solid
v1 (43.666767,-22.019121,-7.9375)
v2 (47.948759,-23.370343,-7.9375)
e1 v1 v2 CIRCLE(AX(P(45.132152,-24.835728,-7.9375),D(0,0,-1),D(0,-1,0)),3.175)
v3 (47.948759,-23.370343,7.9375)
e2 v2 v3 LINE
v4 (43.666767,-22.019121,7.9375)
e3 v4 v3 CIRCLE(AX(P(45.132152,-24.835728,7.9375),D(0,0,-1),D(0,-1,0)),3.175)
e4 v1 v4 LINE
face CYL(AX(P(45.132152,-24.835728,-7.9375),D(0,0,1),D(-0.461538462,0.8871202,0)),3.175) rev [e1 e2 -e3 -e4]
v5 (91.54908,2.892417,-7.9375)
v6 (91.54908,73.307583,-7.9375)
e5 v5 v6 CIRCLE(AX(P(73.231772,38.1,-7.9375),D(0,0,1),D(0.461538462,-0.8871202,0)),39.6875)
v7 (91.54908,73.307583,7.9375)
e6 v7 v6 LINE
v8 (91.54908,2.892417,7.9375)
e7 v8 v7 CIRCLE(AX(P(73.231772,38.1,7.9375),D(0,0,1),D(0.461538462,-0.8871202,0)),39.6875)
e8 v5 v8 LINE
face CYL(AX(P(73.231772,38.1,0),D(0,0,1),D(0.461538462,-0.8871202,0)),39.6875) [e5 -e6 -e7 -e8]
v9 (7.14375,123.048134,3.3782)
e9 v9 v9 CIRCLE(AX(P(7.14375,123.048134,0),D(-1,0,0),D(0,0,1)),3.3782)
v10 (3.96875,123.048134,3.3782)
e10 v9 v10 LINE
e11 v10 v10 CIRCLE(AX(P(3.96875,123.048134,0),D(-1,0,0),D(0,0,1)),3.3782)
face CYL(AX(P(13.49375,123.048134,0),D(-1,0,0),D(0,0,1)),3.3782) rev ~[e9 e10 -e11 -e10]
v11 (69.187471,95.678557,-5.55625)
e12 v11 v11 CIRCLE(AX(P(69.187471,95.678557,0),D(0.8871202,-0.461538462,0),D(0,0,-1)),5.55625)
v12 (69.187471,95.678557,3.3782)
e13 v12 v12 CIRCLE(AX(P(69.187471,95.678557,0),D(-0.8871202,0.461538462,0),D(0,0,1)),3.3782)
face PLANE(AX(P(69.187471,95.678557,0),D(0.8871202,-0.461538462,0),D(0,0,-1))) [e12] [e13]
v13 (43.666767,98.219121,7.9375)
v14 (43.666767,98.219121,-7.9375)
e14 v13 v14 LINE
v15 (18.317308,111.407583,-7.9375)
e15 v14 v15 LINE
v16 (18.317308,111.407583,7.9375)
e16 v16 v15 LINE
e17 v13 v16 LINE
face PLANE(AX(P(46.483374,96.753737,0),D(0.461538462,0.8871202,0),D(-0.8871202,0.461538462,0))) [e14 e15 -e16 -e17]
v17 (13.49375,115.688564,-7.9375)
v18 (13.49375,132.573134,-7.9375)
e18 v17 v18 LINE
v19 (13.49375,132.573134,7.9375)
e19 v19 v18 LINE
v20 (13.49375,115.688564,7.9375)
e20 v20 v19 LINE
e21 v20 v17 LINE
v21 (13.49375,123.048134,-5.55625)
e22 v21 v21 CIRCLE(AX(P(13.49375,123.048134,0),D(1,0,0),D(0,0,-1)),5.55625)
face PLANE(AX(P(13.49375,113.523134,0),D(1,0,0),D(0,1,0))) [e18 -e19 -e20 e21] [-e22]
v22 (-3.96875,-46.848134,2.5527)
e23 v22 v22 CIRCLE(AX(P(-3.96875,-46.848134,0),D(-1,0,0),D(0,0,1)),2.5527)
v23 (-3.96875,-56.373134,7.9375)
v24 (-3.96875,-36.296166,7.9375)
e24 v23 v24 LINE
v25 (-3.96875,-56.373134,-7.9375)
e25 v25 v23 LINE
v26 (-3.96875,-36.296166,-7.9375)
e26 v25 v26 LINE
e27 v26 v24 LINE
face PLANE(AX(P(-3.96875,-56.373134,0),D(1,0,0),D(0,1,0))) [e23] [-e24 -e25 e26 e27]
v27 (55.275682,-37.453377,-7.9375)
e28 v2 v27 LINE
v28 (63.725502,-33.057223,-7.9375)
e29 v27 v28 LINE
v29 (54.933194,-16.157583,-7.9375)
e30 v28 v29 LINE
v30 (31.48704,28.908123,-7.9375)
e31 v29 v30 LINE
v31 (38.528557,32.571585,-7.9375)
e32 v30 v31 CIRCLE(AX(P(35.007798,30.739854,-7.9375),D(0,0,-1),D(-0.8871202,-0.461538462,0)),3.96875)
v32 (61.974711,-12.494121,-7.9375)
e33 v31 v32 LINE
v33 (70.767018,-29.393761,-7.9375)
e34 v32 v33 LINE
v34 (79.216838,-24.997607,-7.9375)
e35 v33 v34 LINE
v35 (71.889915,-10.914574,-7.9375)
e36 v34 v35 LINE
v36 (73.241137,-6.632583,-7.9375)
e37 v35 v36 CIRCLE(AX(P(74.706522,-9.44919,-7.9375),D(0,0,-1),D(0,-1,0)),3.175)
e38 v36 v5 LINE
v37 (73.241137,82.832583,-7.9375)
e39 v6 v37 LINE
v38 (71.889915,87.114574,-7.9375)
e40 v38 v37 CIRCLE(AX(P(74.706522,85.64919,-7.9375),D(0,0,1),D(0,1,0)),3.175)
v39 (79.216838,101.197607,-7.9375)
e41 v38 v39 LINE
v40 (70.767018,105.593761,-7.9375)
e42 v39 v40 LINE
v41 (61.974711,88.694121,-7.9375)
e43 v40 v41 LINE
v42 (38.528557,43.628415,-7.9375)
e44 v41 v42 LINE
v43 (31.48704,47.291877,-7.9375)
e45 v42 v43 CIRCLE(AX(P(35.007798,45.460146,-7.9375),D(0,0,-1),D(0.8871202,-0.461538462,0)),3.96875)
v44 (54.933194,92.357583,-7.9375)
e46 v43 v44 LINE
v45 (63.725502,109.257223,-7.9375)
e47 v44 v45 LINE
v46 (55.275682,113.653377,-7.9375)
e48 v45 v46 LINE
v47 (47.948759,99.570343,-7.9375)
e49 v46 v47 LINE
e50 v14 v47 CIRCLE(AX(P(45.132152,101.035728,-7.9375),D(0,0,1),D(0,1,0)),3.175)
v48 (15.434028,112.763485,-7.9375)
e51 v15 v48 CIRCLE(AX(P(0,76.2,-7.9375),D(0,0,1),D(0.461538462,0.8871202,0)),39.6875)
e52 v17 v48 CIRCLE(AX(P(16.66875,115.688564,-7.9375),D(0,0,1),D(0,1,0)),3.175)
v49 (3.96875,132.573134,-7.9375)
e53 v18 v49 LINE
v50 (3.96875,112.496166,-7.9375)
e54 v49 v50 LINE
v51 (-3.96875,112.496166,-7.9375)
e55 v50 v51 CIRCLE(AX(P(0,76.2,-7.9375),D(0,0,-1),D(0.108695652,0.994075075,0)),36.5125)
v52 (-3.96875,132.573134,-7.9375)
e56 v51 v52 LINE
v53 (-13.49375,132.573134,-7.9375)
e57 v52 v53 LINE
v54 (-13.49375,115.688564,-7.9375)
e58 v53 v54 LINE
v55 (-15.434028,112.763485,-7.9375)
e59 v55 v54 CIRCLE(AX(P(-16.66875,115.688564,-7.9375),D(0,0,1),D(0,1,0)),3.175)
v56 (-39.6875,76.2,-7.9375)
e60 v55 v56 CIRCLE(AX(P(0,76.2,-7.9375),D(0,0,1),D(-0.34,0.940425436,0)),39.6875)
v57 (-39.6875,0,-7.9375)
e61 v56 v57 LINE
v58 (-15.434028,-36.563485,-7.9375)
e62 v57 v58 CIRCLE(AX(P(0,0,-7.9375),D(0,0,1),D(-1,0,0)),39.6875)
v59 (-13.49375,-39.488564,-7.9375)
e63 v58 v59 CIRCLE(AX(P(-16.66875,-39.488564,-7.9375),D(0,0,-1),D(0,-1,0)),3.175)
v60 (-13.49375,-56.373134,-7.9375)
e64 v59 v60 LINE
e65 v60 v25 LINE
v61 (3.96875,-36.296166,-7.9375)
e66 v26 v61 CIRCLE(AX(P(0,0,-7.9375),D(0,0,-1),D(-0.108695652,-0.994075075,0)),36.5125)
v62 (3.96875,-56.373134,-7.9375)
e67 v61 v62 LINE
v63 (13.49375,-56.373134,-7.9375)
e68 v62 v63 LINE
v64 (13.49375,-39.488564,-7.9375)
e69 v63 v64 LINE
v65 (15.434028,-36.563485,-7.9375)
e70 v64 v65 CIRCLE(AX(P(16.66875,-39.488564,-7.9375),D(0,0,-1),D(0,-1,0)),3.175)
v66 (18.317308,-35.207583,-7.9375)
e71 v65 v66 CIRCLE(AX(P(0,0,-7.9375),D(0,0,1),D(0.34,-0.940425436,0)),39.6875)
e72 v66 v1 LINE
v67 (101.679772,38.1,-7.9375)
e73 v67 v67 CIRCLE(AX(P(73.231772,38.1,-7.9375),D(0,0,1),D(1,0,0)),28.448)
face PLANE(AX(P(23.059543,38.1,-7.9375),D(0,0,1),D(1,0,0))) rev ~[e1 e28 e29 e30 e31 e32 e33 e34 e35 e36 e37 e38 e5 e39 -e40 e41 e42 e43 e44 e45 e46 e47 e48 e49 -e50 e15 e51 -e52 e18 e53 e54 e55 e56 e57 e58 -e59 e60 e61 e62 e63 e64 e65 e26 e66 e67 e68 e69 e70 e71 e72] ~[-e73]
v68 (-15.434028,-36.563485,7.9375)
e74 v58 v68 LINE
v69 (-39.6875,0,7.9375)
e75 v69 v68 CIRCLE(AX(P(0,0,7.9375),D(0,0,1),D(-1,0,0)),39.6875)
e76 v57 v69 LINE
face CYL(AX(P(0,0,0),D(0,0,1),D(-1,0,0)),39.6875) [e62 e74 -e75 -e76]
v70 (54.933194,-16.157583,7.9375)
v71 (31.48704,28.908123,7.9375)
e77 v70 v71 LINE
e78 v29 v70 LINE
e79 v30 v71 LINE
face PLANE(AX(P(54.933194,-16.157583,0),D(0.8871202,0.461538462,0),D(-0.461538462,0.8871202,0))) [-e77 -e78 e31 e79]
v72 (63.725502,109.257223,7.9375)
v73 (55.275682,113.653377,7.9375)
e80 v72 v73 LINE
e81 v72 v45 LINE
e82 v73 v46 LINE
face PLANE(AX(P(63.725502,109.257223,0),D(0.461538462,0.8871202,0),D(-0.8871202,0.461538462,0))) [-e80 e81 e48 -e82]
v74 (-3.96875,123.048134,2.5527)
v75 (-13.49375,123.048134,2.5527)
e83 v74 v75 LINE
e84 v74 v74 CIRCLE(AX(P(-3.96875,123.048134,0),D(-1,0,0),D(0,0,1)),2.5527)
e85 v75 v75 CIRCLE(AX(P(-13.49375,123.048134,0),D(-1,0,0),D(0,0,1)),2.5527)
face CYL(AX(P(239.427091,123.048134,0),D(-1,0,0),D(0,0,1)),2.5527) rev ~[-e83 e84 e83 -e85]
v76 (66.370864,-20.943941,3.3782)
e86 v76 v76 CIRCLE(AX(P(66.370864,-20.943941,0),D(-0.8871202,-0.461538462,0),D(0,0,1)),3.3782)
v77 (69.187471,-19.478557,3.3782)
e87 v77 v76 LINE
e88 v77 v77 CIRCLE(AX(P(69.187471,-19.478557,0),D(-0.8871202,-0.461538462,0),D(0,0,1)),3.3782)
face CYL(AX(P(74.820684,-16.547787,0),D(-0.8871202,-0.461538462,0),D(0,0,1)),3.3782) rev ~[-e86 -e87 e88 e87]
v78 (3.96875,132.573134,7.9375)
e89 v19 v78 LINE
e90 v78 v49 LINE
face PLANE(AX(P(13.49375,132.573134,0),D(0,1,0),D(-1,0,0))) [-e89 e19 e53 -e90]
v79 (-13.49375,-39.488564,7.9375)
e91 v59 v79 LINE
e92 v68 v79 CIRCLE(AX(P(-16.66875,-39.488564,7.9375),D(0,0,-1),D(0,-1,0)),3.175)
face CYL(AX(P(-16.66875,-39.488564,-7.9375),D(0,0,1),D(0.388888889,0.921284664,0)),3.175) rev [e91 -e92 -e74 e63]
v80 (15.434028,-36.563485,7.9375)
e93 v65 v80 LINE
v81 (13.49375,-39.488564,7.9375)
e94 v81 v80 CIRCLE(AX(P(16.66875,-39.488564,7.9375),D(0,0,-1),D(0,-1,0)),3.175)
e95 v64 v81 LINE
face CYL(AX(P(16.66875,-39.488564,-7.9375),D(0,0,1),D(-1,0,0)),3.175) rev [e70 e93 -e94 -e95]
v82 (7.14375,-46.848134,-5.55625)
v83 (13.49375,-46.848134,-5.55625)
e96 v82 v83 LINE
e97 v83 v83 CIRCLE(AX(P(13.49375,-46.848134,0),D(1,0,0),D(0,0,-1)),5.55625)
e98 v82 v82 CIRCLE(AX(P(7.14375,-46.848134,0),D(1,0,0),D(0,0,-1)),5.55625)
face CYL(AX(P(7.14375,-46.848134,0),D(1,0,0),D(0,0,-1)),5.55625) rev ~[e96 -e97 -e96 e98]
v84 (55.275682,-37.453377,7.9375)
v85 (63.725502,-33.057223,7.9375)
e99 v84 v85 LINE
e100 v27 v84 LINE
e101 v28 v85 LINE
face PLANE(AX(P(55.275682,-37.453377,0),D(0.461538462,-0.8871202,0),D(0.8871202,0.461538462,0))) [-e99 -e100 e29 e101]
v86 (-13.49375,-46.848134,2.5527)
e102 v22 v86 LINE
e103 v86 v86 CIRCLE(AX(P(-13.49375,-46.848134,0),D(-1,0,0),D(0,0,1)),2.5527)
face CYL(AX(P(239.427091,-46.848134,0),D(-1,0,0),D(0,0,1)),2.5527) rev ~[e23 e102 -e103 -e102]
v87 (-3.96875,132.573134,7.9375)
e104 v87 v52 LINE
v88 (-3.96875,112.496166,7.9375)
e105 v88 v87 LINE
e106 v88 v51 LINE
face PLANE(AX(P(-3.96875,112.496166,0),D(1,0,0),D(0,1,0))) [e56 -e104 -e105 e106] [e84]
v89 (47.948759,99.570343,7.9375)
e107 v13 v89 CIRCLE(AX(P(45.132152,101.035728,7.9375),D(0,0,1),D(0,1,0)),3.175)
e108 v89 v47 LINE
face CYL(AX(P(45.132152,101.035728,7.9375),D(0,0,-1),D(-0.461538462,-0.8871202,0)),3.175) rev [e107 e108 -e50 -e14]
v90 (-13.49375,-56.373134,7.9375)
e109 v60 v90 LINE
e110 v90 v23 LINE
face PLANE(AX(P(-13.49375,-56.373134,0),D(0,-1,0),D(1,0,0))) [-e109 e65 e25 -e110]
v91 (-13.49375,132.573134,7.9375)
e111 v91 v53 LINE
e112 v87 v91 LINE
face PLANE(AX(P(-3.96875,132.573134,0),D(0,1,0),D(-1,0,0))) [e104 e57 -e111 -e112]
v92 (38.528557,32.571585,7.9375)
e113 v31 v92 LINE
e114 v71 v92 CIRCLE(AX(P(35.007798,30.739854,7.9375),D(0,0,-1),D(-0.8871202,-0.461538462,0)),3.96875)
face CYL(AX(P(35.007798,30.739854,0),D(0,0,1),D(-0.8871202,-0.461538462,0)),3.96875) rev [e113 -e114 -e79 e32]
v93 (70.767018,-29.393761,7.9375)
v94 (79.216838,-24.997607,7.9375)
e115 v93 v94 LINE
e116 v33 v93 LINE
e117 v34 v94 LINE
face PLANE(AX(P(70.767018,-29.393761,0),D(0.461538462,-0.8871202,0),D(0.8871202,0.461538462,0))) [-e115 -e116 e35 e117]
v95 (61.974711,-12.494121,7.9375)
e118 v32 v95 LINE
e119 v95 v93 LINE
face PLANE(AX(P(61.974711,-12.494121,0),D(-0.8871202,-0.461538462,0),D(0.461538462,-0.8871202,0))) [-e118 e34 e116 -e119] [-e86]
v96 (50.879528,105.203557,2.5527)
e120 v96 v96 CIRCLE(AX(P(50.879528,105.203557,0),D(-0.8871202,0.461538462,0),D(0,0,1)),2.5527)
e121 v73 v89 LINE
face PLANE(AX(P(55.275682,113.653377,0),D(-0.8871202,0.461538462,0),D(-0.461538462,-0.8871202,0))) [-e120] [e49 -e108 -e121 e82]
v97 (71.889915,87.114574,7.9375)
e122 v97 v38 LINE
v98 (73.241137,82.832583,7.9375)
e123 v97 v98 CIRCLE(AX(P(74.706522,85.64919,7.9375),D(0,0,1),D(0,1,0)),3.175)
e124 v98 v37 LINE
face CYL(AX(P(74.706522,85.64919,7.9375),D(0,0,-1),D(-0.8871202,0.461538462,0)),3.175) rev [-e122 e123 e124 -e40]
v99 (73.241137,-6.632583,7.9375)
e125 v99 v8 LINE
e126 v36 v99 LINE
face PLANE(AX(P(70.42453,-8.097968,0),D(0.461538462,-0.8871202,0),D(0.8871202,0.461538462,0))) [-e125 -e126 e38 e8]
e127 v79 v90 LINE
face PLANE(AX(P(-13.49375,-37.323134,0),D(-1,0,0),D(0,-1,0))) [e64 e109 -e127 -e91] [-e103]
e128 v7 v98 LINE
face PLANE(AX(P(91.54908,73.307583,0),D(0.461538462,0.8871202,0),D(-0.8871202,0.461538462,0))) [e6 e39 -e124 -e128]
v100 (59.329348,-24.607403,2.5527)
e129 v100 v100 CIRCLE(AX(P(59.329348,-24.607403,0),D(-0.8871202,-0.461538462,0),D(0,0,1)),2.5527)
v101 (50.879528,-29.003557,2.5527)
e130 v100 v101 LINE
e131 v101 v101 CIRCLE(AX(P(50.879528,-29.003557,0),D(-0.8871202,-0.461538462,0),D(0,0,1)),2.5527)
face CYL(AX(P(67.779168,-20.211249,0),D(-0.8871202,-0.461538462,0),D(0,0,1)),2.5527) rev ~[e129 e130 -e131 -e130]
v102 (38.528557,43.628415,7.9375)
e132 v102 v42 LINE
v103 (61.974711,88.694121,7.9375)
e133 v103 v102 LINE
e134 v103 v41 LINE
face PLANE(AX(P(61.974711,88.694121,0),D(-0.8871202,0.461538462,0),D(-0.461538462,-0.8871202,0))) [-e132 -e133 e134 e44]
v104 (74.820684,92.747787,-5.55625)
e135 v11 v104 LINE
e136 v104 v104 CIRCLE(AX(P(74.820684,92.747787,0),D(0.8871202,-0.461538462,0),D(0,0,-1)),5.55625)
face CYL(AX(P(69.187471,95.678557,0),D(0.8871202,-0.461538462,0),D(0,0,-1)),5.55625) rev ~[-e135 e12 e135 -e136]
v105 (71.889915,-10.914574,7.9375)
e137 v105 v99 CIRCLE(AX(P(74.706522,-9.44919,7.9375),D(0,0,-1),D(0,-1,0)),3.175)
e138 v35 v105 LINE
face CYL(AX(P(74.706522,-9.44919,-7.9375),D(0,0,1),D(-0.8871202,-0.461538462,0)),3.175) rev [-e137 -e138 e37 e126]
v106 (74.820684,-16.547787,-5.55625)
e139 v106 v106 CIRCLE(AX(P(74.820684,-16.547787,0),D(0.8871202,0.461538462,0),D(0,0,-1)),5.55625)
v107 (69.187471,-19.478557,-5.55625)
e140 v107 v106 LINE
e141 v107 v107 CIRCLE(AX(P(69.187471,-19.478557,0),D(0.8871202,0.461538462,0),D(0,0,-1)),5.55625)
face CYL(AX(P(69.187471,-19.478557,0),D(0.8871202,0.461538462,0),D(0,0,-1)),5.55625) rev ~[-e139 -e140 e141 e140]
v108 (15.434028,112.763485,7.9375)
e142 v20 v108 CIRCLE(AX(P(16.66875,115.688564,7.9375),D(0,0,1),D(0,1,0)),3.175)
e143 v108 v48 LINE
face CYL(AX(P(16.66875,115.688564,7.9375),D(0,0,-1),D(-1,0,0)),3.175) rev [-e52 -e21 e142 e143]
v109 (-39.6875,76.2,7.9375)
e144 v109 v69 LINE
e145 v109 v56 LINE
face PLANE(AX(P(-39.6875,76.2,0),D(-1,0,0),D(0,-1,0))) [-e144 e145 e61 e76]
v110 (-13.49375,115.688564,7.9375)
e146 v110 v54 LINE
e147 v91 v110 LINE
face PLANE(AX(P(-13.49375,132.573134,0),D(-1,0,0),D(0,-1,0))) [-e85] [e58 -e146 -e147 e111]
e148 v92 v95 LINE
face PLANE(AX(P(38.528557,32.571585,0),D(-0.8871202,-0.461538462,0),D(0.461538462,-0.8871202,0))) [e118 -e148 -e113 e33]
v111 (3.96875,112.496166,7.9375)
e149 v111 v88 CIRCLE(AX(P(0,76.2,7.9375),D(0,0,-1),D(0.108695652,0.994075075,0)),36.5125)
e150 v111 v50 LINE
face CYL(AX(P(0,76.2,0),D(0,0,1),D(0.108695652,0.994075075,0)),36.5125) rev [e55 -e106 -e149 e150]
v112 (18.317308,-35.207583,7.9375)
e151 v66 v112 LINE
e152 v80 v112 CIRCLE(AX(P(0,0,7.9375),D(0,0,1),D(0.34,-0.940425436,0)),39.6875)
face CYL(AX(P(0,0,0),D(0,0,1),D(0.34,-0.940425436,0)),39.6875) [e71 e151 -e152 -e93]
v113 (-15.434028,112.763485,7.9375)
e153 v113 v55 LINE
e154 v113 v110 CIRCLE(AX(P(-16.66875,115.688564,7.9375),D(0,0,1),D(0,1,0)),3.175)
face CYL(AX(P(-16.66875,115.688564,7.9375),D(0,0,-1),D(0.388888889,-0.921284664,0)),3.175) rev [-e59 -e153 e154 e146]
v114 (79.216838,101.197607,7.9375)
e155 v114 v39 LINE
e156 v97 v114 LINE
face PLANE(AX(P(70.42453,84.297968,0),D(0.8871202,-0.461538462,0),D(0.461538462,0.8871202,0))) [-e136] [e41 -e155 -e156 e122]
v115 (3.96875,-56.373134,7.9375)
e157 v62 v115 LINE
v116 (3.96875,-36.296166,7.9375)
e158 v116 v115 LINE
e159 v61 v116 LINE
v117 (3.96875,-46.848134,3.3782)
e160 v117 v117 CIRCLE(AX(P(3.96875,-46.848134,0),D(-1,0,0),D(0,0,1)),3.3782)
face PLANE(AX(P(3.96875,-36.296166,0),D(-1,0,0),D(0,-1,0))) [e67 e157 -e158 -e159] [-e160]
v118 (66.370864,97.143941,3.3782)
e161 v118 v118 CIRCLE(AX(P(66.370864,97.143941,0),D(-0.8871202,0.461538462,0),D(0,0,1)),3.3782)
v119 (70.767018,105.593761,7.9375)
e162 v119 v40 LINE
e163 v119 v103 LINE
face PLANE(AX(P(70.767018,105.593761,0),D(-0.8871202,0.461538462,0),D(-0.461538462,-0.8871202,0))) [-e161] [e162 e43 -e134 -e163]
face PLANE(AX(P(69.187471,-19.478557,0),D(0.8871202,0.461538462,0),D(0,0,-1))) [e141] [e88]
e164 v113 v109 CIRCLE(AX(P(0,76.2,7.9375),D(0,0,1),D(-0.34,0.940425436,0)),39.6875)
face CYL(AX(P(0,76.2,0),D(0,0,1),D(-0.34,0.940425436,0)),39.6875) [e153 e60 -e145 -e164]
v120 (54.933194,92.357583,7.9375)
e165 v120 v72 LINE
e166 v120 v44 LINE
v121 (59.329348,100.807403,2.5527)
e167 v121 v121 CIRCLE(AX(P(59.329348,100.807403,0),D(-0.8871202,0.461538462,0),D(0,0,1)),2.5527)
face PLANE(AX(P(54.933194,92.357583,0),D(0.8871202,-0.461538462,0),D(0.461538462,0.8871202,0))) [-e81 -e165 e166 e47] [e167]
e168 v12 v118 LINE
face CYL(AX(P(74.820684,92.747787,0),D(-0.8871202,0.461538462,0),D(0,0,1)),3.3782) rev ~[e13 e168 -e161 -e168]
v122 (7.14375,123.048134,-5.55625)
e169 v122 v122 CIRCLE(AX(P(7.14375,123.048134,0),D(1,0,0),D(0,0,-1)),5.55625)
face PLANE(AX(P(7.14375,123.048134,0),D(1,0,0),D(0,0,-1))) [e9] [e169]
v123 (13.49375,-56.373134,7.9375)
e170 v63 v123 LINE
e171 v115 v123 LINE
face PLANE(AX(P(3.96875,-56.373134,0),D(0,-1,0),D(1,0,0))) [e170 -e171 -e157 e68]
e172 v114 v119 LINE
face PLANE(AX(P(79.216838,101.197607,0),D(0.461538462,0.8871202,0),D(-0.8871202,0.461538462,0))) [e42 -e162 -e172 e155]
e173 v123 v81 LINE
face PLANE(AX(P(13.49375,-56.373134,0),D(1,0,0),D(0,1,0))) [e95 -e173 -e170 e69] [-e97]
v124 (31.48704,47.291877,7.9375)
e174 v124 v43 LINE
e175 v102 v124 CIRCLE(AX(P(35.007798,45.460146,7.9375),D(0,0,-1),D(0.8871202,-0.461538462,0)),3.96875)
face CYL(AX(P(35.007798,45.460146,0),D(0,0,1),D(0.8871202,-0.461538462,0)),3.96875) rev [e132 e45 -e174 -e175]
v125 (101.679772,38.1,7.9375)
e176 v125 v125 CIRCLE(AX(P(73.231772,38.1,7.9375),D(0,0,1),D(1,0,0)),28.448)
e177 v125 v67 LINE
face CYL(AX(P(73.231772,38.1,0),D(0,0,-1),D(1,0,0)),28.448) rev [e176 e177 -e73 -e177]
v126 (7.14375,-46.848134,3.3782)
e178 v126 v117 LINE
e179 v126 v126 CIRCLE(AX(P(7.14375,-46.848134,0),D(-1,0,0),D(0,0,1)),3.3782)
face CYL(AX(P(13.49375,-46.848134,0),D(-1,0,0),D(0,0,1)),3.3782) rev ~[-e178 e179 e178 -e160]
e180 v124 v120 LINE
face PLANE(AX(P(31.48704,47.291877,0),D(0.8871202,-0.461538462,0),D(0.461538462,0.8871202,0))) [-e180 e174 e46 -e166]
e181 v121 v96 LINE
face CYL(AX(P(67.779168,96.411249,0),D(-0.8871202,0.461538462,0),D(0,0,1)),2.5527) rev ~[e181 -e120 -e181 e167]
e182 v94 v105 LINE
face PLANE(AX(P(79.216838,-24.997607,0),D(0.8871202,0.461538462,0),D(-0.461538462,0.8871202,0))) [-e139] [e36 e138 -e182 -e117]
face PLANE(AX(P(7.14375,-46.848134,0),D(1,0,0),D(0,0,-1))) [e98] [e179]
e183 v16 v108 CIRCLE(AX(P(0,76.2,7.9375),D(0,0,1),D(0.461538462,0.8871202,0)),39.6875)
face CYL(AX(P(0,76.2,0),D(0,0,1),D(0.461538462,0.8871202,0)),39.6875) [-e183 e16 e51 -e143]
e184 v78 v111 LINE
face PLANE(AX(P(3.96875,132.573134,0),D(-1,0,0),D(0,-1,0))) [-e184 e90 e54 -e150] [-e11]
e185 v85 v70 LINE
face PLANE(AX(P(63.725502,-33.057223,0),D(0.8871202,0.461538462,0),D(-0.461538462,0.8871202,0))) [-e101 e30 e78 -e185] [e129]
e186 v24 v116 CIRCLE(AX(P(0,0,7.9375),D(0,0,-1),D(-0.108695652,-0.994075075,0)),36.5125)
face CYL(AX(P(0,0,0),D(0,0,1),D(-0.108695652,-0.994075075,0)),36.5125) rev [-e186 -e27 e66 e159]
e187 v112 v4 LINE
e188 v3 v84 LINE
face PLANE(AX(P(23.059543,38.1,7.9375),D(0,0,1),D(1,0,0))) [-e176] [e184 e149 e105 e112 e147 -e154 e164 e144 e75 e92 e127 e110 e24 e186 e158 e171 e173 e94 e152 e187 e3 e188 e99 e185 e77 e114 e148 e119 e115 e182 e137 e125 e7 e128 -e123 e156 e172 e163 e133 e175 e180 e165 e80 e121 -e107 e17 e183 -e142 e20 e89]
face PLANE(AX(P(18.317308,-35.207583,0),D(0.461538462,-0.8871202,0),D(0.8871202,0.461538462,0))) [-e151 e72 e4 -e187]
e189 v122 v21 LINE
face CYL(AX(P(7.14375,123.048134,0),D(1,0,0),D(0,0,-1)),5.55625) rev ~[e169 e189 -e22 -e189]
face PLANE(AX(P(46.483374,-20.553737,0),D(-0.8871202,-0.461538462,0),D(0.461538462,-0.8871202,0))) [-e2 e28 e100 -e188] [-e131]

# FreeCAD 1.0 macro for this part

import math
import FreeCAD as App
import Part
import Sketcher
Q = App.Units.Quantity


def edges_at(feature, points):
    """Names of the edges that pass closest to the given points."""
    edges = feature.Shape.Edges
    near = lambda p: min(range(len(edges)), key=lambda i: edges[i].distToShape(Part.Vertex(*p))[0])
    return sorted({f"Edge{near(p) + 1}" for p in points})

doc = App.newDocument("Part")
body = doc.addObject("PartDesign::Body", "Body")

sketch1 = body.newObject("Sketcher::SketchObject", "Sketch")
sketch1.AttachmentSupport = (doc.getObject("XY_Plane"), [""])
sketch1.MapMode = "FlatFace"
sketch1.addGeometry(Part.LineSegment(App.Vector(-39.7, 76.2, 0), App.Vector(-39.7, 0, 0)), False)
sketch1.addGeometry(Part.ArcOfCircle(Part.Circle(App.Vector(0, 0, 0), App.Vector(0, 0, 1), 39.7), math.radians(-180), math.radians(-110)), False)
sketch1.addGeometry(Part.LineSegment(App.Vector(-13.5, -37.3, 0), App.Vector(-13.5, -56.4, 0)), False)
sketch1.addGeometry(Part.LineSegment(App.Vector(-13.5, -56.4, 0), App.Vector(-4, -56.4, 0)), False)
sketch1.addGeometry(Part.LineSegment(App.Vector(-4, -56.4, 0), App.Vector(-4, -36.3, 0)), False)
sketch1.addGeometry(Part.ArcOfCircle(Part.Circle(App.Vector(0, 0, 0), App.Vector(0, 0, 1), 36.5), math.radians(-84), math.radians(264)), False)
sketch1.addGeometry(Part.LineSegment(App.Vector(4, -36.3, 0), App.Vector(4, -56.4, 0)), False)
sketch1.addGeometry(Part.LineSegment(App.Vector(4, -56.4, 0), App.Vector(13.5, -56.4, 0)), False)
sketch1.addGeometry(Part.LineSegment(App.Vector(13.5, -56.4, 0), App.Vector(13.5, -37.3, 0)), False)
sketch1.addGeometry(Part.ArcOfCircle(Part.Circle(App.Vector(0, 0, 0), App.Vector(0, 0, 1), 39.7), math.radians(-70.12), math.radians(-62.51)), False)
sketch1.addGeometry(Part.LineSegment(App.Vector(18.3, -35.2, 0), App.Vector(46.5, -20.6, 0)), False)
sketch1.addGeometry(Part.LineSegment(App.Vector(46.5, -20.6, 0), App.Vector(55.3, -37.5, 0)), False)
sketch1.addGeometry(Part.LineSegment(App.Vector(55.3, -37.5, 0), App.Vector(63.7, -33.1, 0)), False)
sketch1.addGeometry(Part.LineSegment(App.Vector(63.7, -33.1, 0), App.Vector(54.9, -16.2, 0)), False)
sketch1.addGeometry(Part.LineSegment(App.Vector(54.9, -16.2, 0), App.Vector(31.5, 28.9, 0)), False)
sketch1.addGeometry(Part.ArcOfCircle(Part.Circle(App.Vector(35, 30.7, 0), App.Vector(0, 0, 1), 4), math.radians(27), math.radians(207)), False)
sketch1.addGeometry(Part.LineSegment(App.Vector(38.5, 32.6, 0), App.Vector(62, -12.5, 0)), False)
sketch1.addGeometry(Part.LineSegment(App.Vector(62, -12.5, 0), App.Vector(70.8, -29.4, 0)), False)
sketch1.addGeometry(Part.LineSegment(App.Vector(70.8, -29.4, 0), App.Vector(79.2, -25, 0)), False)
sketch1.addGeometry(Part.LineSegment(App.Vector(79.2, -25, 0), App.Vector(70.4, -8.1, 0)), False)
sketch1.addGeometry(Part.LineSegment(App.Vector(70.4, -8.1, 0), App.Vector(91.5, 2.9, 0)), False)
sketch1.addGeometry(Part.ArcOfCircle(Part.Circle(App.Vector(73.2, 38.1, 0), App.Vector(0, 0, 1), 39.7), math.radians(-63), math.radians(63)), False)
sketch1.addGeometry(Part.LineSegment(App.Vector(91.5, 73.3, 0), App.Vector(70.4, 84.3, 0)), False)
sketch1.addGeometry(Part.LineSegment(App.Vector(70.4, 84.3, 0), App.Vector(79.2, 101.2, 0)), False)
sketch1.addGeometry(Part.LineSegment(App.Vector(79.2, 101.2, 0), App.Vector(70.8, 105.6, 0)), False)
sketch1.addGeometry(Part.LineSegment(App.Vector(70.8, 105.6, 0), App.Vector(62, 88.7, 0)), False)
sketch1.addGeometry(Part.LineSegment(App.Vector(62, 88.7, 0), App.Vector(38.5, 43.6, 0)), False)
sketch1.addGeometry(Part.ArcOfCircle(Part.Circle(App.Vector(35, 45.5, 0), App.Vector(0, 0, 1), 4), math.radians(153), math.radians(333)), False)
sketch1.addGeometry(Part.LineSegment(App.Vector(31.5, 47.3, 0), App.Vector(54.9, 92.4, 0)), False)
sketch1.addGeometry(Part.LineSegment(App.Vector(54.9, 92.4, 0), App.Vector(63.7, 109.3, 0)), False)
sketch1.addGeometry(Part.LineSegment(App.Vector(63.7, 109.3, 0), App.Vector(55.3, 113.7, 0)), False)
sketch1.addGeometry(Part.LineSegment(App.Vector(55.3, 113.7, 0), App.Vector(46.5, 96.8, 0)), False)
sketch1.addGeometry(Part.LineSegment(App.Vector(46.5, 96.8, 0), App.Vector(18.3, 111.4, 0)), False)
sketch1.addGeometry(Part.ArcOfCircle(Part.Circle(App.Vector(0, 76.2, 0), App.Vector(0, 0, 1), 39.7), math.radians(62.51), math.radians(70.12)), False)
sketch1.addGeometry(Part.LineSegment(App.Vector(13.5, 113.5, 0), App.Vector(13.5, 132.6, 0)), False)
sketch1.addGeometry(Part.LineSegment(App.Vector(13.5, 132.6, 0), App.Vector(4, 132.6, 0)), False)
sketch1.addGeometry(Part.LineSegment(App.Vector(4, 132.6, 0), App.Vector(4, 112.5, 0)), False)
sketch1.addGeometry(Part.ArcOfCircle(Part.Circle(App.Vector(0, 76.2, 0), App.Vector(0, 0, 1), 36.5), math.radians(96), math.radians(444)), False)
sketch1.addGeometry(Part.LineSegment(App.Vector(-4, 112.5, 0), App.Vector(-4, 132.6, 0)), False)
sketch1.addGeometry(Part.LineSegment(App.Vector(-4, 132.6, 0), App.Vector(-13.5, 132.6, 0)), False)
sketch1.addGeometry(Part.LineSegment(App.Vector(-13.5, 132.6, 0), App.Vector(-13.5, 113.5, 0)), False)
sketch1.addGeometry(Part.ArcOfCircle(Part.Circle(App.Vector(0, 76.2, 0), App.Vector(0, 0, 1), 39.7), math.radians(110), math.radians(180)), False)
sketch1.addGeometry(Part.Circle(App.Vector(73.2, 38.1, 0), App.Vector(0, 0, 1), 28.4), False)
sketch1.addConstraint(Sketcher.Constraint("Tangent", 0, 2, 1, 1))
sketch1.addConstraint(Sketcher.Constraint("Coincident", 1, 2, 2, 1))
sketch1.addConstraint(Sketcher.Constraint("Coincident", 2, 2, 3, 1))
sketch1.addConstraint(Sketcher.Constraint("Coincident", 3, 2, 4, 1))
sketch1.addConstraint(Sketcher.Constraint("Coincident", 4, 2, 5, 2))
sketch1.addConstraint(Sketcher.Constraint("Coincident", 5, 1, 6, 1))
sketch1.addConstraint(Sketcher.Constraint("Coincident", 6, 2, 7, 1))
sketch1.addConstraint(Sketcher.Constraint("Coincident", 7, 2, 8, 1))
sketch1.addConstraint(Sketcher.Constraint("Coincident", 8, 2, 9, 1))
sketch1.addConstraint(Sketcher.Constraint("Tangent", 9, 2, 10, 1))
sketch1.addConstraint(Sketcher.Constraint("Coincident", 10, 2, 11, 1))
sketch1.addConstraint(Sketcher.Constraint("Coincident", 11, 2, 12, 1))
sketch1.addConstraint(Sketcher.Constraint("Coincident", 12, 2, 13, 1))
sketch1.addConstraint(Sketcher.Constraint("Coincident", 13, 2, 14, 1))
sketch1.addConstraint(Sketcher.Constraint("Tangent", 14, 2, 15, 2))
sketch1.addConstraint(Sketcher.Constraint("Tangent", 15, 1, 16, 1))
sketch1.addConstraint(Sketcher.Constraint("Coincident", 16, 2, 17, 1))
sketch1.addConstraint(Sketcher.Constraint("Coincident", 17, 2, 18, 1))
sketch1.addConstraint(Sketcher.Constraint("Coincident", 18, 2, 19, 1))
sketch1.addConstraint(Sketcher.Constraint("Coincident", 19, 2, 20, 1))
sketch1.addConstraint(Sketcher.Constraint("Tangent", 20, 2, 21, 1))
sketch1.addConstraint(Sketcher.Constraint("Tangent", 21, 2, 22, 1))
sketch1.addConstraint(Sketcher.Constraint("Coincident", 22, 2, 23, 1))
sketch1.addConstraint(Sketcher.Constraint("Coincident", 23, 2, 24, 1))
sketch1.addConstraint(Sketcher.Constraint("Coincident", 24, 2, 25, 1))
sketch1.addConstraint(Sketcher.Constraint("Coincident", 25, 2, 26, 1))
sketch1.addConstraint(Sketcher.Constraint("Tangent", 26, 2, 27, 2))
sketch1.addConstraint(Sketcher.Constraint("Tangent", 27, 1, 28, 1))
sketch1.addConstraint(Sketcher.Constraint("Coincident", 28, 2, 29, 1))
sketch1.addConstraint(Sketcher.Constraint("Coincident", 29, 2, 30, 1))
sketch1.addConstraint(Sketcher.Constraint("Coincident", 30, 2, 31, 1))
sketch1.addConstraint(Sketcher.Constraint("Coincident", 31, 2, 32, 1))
sketch1.addConstraint(Sketcher.Constraint("Tangent", 32, 2, 33, 1))
sketch1.addConstraint(Sketcher.Constraint("Coincident", 33, 2, 34, 1))
sketch1.addConstraint(Sketcher.Constraint("Coincident", 34, 2, 35, 1))
sketch1.addConstraint(Sketcher.Constraint("Coincident", 35, 2, 36, 1))
sketch1.addConstraint(Sketcher.Constraint("Coincident", 36, 2, 37, 2))
sketch1.addConstraint(Sketcher.Constraint("Coincident", 37, 1, 38, 1))
sketch1.addConstraint(Sketcher.Constraint("Coincident", 38, 2, 39, 1))
sketch1.addConstraint(Sketcher.Constraint("Coincident", 39, 2, 40, 1))
sketch1.addConstraint(Sketcher.Constraint("Coincident", 40, 2, 41, 1))
sketch1.addConstraint(Sketcher.Constraint("Tangent", 41, 2, 0, 1))
sketch1.addConstraint(Sketcher.Constraint("Vertical", 0))
sketch1.addConstraint(Sketcher.Constraint("Vertical", 2))
sketch1.addConstraint(Sketcher.Constraint("Horizontal", 3))
sketch1.addConstraint(Sketcher.Constraint("Vertical", 4))
sketch1.addConstraint(Sketcher.Constraint("Vertical", 6))
sketch1.addConstraint(Sketcher.Constraint("Horizontal", 7))
sketch1.addConstraint(Sketcher.Constraint("Vertical", 8))
sketch1.addConstraint(Sketcher.Constraint("Vertical", 34))
sketch1.addConstraint(Sketcher.Constraint("Horizontal", 35))
sketch1.addConstraint(Sketcher.Constraint("Vertical", 36))
sketch1.addConstraint(Sketcher.Constraint("Vertical", 38))
sketch1.addConstraint(Sketcher.Constraint("Horizontal", 39))
sketch1.addConstraint(Sketcher.Constraint("Vertical", 40))
sketch1.addConstraint(Sketcher.Constraint("Coincident", 1, 3, -1, 1))
sketch1.addConstraint(Sketcher.Constraint("Coincident", 5, 3, -1, 1))
sketch1.addConstraint(Sketcher.Constraint("Coincident", 9, 3, -1, 1))
sketch1.addConstraint(Sketcher.Constraint("Coincident", 37, 3, 33, 3))
sketch1.addConstraint(Sketcher.Constraint("Coincident", 41, 3, 33, 3))
sketch1.addConstraint(Sketcher.Constraint("Coincident", 42, 3, 21, 3))
sketch1.addConstraint(Sketcher.Constraint("Equal", 1, 9))
sketch1.addConstraint(Sketcher.Constraint("Equal", 9, 21))
sketch1.addConstraint(Sketcher.Constraint("Equal", 15, 27))
sketch1.addConstraint(Sketcher.Constraint("Equal", 21, 33))
sketch1.addConstraint(Sketcher.Constraint("Equal", 5, 37))
sketch1.addConstraint(Sketcher.Constraint("Equal", 33, 41))
sketch1.addConstraint(Sketcher.Constraint("Symmetric", 3, 2, 6, 2, -2))
sketch1.addConstraint(Sketcher.Constraint("Symmetric", 35, 2, 38, 2, -2))
sketch1.addConstraint(Sketcher.Constraint("Perpendicular", 10, 11))
sketch1.addConstraint(Sketcher.Constraint("Perpendicular", 11, 12))
sketch1.addConstraint(Sketcher.Constraint("Perpendicular", 12, 13))
sketch1.addConstraint(Sketcher.Constraint("Parallel", 13, 14))
sketch1.addConstraint(Sketcher.Constraint("Parallel", 14, 16))
sketch1.addConstraint(Sketcher.Constraint("Parallel", 16, 17))
sketch1.addConstraint(Sketcher.Constraint("Perpendicular", 17, 18))
sketch1.addConstraint(Sketcher.Constraint("Perpendicular", 18, 19))
sketch1.addConstraint(Sketcher.Constraint("Perpendicular", 19, 20))
sketch1.addConstraint(Sketcher.Constraint("Perpendicular", 22, 23))
sketch1.addConstraint(Sketcher.Constraint("Perpendicular", 23, 24))
sketch1.addConstraint(Sketcher.Constraint("Perpendicular", 24, 25))
sketch1.addConstraint(Sketcher.Constraint("Parallel", 25, 26))
sketch1.addConstraint(Sketcher.Constraint("Parallel", 26, 28))
sketch1.addConstraint(Sketcher.Constraint("Parallel", 28, 29))
sketch1.addConstraint(Sketcher.Constraint("Perpendicular", 29, 30))
sketch1.addConstraint(Sketcher.Constraint("Perpendicular", 30, 31))
sketch1.addConstraint(Sketcher.Constraint("Perpendicular", 31, 32))
sketch1.addConstraint(Sketcher.Constraint("Horizontal", 1, 2, 8, 2))
sketch1.addConstraint(Sketcher.Constraint("Horizontal", 33, 2, 40, 2))
sketch1.addConstraint(Sketcher.Constraint("Vertical", 15, 3, 27, 3))
sketch1.addConstraint(Sketcher.Constraint("Vertical", 20, 2, 21, 2))
sketch1.addConstraint(Sketcher.Constraint("Vertical", 19, 2, 22, 2))
sketch1.addConstraint(Sketcher.Constraint("Vertical", 18, 2, 23, 2))
sketch1.addConstraint(Sketcher.Constraint("Vertical", 17, 2, 24, 2))
sketch1.addConstraint(Sketcher.Constraint("Vertical", 16, 2, 25, 2))
sketch1.addConstraint(Sketcher.Constraint("Vertical", 13, 2, 28, 2))
sketch1.addConstraint(Sketcher.Constraint("Vertical", 12, 2, 29, 2))
sketch1.addConstraint(Sketcher.Constraint("Vertical", 11, 2, 30, 2))
sketch1.addConstraint(Sketcher.Constraint("Vertical", 10, 2, 31, 2))
sketch1.addConstraint(Sketcher.Constraint("Vertical", 8, 2, 33, 2))
sketch1.addConstraint(Sketcher.Constraint("Vertical", 6, 2, 35, 2))
sketch1.addConstraint(Sketcher.Constraint("Equal", 8, 34))
sketch1.addConstraint(Sketcher.Constraint("Equal", 11, 13))
sketch1.addConstraint(Sketcher.Constraint("Equal", 14, 16))
sketch1.addConstraint(Sketcher.Constraint("Equal", 13, 17))
sketch1.addConstraint(Sketcher.Constraint("Equal", 12, 18))
sketch1.addConstraint(Sketcher.Constraint("Equal", 17, 19))
sketch1.addConstraint(Sketcher.Constraint("Diameter", 42, Q("2.24 in")))
sketch1.addConstraint(Sketcher.Constraint("DistanceY", 0, 2, 0, 1, Q("3 in")))
sketch1.addConstraint(Sketcher.Constraint("Distance", 14, Q("2 in")))
sketch1.addConstraint(Sketcher.Constraint("Radius", 1, Q("1.5625 in")))
sketch1.addConstraint(Sketcher.Constraint("Radius", 5, Q("1.4375 in")))
sketch1.addConstraint(Sketcher.Constraint("Radius", 15, Q("0.15625 in")))
sketch1.addConstraint(Sketcher.Constraint("DistanceY", 2, 2, 2, 1, Q("0.75 in")))
sketch1.addConstraint(Sketcher.Constraint("Distance", 10, Q("1.25 in")))
sketch1.addConstraint(Sketcher.Constraint("Distance", 11, Q("0.75 in")))
sketch1.addConstraint(Sketcher.Constraint("DistanceX", 3, 1, 3, 2, Q("0.375 in")))
sketch1.addConstraint(Sketcher.Constraint("DistanceY", 9, 2, 13, 2, Q("0.75 in")))
sketch1.addConstraint(Sketcher.Constraint("Distance", 12, Q("0.375 in")))
sketch1.addConstraint(Sketcher.Constraint("DistanceX", 1, 2, -1, 1, Q("0.53125 in")))
pad1 = body.newObject("PartDesign::Pad", "Pad")
pad1.Profile = sketch1
pad1.Length = Q("0.625 in")
pad1.Midplane = True

sketch2 = body.newObject("Sketcher::SketchObject", "Sketch001")
sketch2.AttachmentSupport = (doc.getObject("YZ_Plane"), [""])
sketch2.MapMode = "FlatFace"
sketch2.AttachmentOffset = App.Placement(App.Vector(0, 0, 0.53125 * 25.4), App.Rotation())
sketch2.addGeometry(Part.Circle(App.Vector(123, 0, 0), App.Vector(0, 0, 1), 3.4), False)
sketch2.addConstraint(Sketcher.Constraint("PointOnObject", 0, 3, -1))
sketch2.addConstraint(Sketcher.Constraint("Diameter", 0, Q("0.266 in")))
sketch2.addConstraint(Sketcher.Constraint("DistanceX", -1, 1, 0, 3, 123.048134))
doc.recompute()
hole = body.newObject("PartDesign::Hole", "Hole")
hole.Profile = sketch2
hole.ThreadType = "None"
hole.Diameter = Q("0.266 in")
hole.DepthType = "Dimension"
hole.Depth = Q("0.375 in")
hole.DrillPoint = "Flat"
hole.HoleCutType = "Counterbore"
hole.HoleCutDiameter = Q("0.4375 in")
hole.HoleCutDepth = Q("0.25 in")

sketch3 = body.newObject("Sketcher::SketchObject", "Sketch002")
sketch3.AttachmentSupport = (doc.getObject("YZ_Plane"), [""])
sketch3.MapMode = "FlatFace"
sketch3.AttachmentOffset = App.Placement(App.Vector(0, 0, -0.15625 * 25.4), App.Rotation())
sketch3.addGeometry(Part.Circle(App.Vector(123, 0, 0), App.Vector(0, 0, 1), 2.6), False)
sketch3.addConstraint(Sketcher.Constraint("PointOnObject", 0, 3, -1))
sketch3.addConstraint(Sketcher.Constraint("Diameter", 0, Q("0.201 in")))
sketch3.addConstraint(Sketcher.Constraint("DistanceX", -1, 1, 0, 3, 123.048134))
doc.recompute()
hole2 = body.newObject("PartDesign::Hole", "Hole001")
hole2.Profile = sketch3
hole2.ThreadType = "None"
hole2.Diameter = Q("0.201 in")
hole2.DepthType = "ThroughAll"

sketch4 = body.newObject("Sketcher::SketchObject", "Sketch003")
sketch4.AttachmentSupport = (doc.getObject("YZ_Plane"), [""])
sketch4.MapMode = "FlatFace"
sketch4.AttachmentOffset = App.Placement(App.Vector(0, 0, 0.53125 * 25.4), App.Rotation())
sketch4.addGeometry(Part.Circle(App.Vector(-46.8, 0, 0), App.Vector(0, 0, 1), 3.4), False)
sketch4.addConstraint(Sketcher.Constraint("PointOnObject", 0, 3, -1))
sketch4.addConstraint(Sketcher.Constraint("Diameter", 0, Q("0.266 in")))
sketch4.addConstraint(Sketcher.Constraint("DistanceX", 0, 3, -1, 1, 46.848134))
doc.recompute()
hole3 = body.newObject("PartDesign::Hole", "Hole002")
hole3.Profile = sketch4
hole3.ThreadType = "None"
hole3.Diameter = Q("0.266 in")
hole3.DepthType = "Dimension"
hole3.Depth = Q("0.375 in")
hole3.DrillPoint = "Flat"
hole3.HoleCutType = "Counterbore"
hole3.HoleCutDiameter = Q("0.4375 in")
hole3.HoleCutDepth = Q("0.25 in")

sketch5 = body.newObject("Sketcher::SketchObject", "Sketch004")
sketch5.AttachmentSupport = (doc.getObject("YZ_Plane"), [""])
sketch5.MapMode = "FlatFace"
sketch5.AttachmentOffset = App.Placement(App.Vector(0, 0, -0.15625 * 25.4), App.Rotation())
sketch5.addGeometry(Part.Circle(App.Vector(-46.8, 0, 0), App.Vector(0, 0, 1), 2.6), False)
sketch5.addConstraint(Sketcher.Constraint("PointOnObject", 0, 3, -1))
sketch5.addConstraint(Sketcher.Constraint("Diameter", 0, Q("0.201 in")))
sketch5.addConstraint(Sketcher.Constraint("DistanceX", 0, 3, -1, 1, 46.848134))
doc.recompute()
hole4 = body.newObject("PartDesign::Hole", "Hole003")
hole4.Profile = sketch5
hole4.ThreadType = "None"
hole4.Diameter = Q("0.201 in")
hole4.DepthType = "ThroughAll"

sketch6 = body.newObject("Sketcher::SketchObject", "Sketch005")
sketch6.Placement = App.Placement(App.Vector(20.907888, -10.877663, 0), App.Rotation(App.Vector(0, 0, -1), App.Vector(0.461538462, 0.8871202, 0), App.Vector(0.8871202, -0.461538462, 0), "ZXY"))
sketch6.addGeometry(Part.Circle(App.Vector(0, 116.8, 0), App.Vector(0, 0, 1), 3.4), False)
sketch6.addConstraint(Sketcher.Constraint("PointOnObject", 0, 3, -2))
sketch6.addConstraint(Sketcher.Constraint("Diameter", 0, Q("0.266 in")))
sketch6.addConstraint(Sketcher.Constraint("DistanceY", -1, 1, 0, 3, 116.811059))
doc.recompute()
hole5 = body.newObject("PartDesign::Hole", "Hole004")
hole5.Profile = sketch6
hole5.ThreadType = "None"
hole5.Diameter = Q("0.266 in")
hole5.DepthType = "Dimension"
hole5.Depth = Q("0.375 in")
hole5.DrillPoint = "Flat"
hole5.HoleCutType = "Counterbore"
hole5.HoleCutDiameter = Q("0.4375 in")
hole5.HoleCutDepth = Q("0.25 in")

sketch7 = body.newObject("Sketcher::SketchObject", "Sketch006")
sketch7.Placement = App.Placement(App.Vector(5.416551, -2.818047, 0), App.Rotation(App.Vector(0, 0, -1), App.Vector(0.461538462, 0.8871202, 0), App.Vector(0.8871202, -0.461538462, 0), "ZXY"))
sketch7.addGeometry(Part.Circle(App.Vector(0, 116.8, 0), App.Vector(0, 0, 1), 2.6), False)
sketch7.addConstraint(Sketcher.Constraint("PointOnObject", 0, 3, -2))
sketch7.addConstraint(Sketcher.Constraint("Diameter", 0, Q("0.201 in")))
sketch7.addConstraint(Sketcher.Constraint("DistanceY", -1, 1, 0, 3, 116.811059))
doc.recompute()
hole6 = body.newObject("PartDesign::Hole", "Hole005")
hole6.Profile = sketch7
hole6.ThreadType = "None"
hole6.Diameter = Q("0.201 in")
hole6.DepthType = "Dimension"
hole6.Depth = Q("0.375 in")
hole6.DrillPoint = "Flat"

sketch8 = body.newObject("Sketcher::SketchObject", "Sketch007")
sketch8.Placement = App.Placement(App.Vector(52.107223, 27.109615, 0), App.Rotation(App.Vector(0, 0, -1), App.Vector(-0.461538462, 0.8871202, 0), App.Vector(0.8871202, 0.461538462, 0), "ZXY"))
sketch8.addGeometry(Part.Circle(App.Vector(0, -49.2, 0), App.Vector(0, 0, 1), 3.4), False)
sketch8.addConstraint(Sketcher.Constraint("PointOnObject", 0, 3, -2))
sketch8.addConstraint(Sketcher.Constraint("Diameter", 0, Q("0.266 in")))
sketch8.addConstraint(Sketcher.Constraint("DistanceY", 0, 3, -1, 1, Q("1.9375 in")))
doc.recompute()
hole7 = body.newObject("PartDesign::Hole", "Hole006")
hole7.Profile = sketch8
hole7.ThreadType = "None"
hole7.Diameter = Q("0.266 in")
hole7.DepthType = "Dimension"
hole7.Depth = Q("0.375 in")
hole7.DrillPoint = "Flat"
hole7.HoleCutType = "Counterbore"
hole7.HoleCutDiameter = Q("0.4375 in")
hole7.HoleCutDepth = Q("0.25 in")

sketch9 = body.newObject("Sketcher::SketchObject", "Sketch008")
sketch9.Placement = App.Placement(App.Vector(36.615886, 19.05, 0), App.Rotation(App.Vector(0, 0, -1), App.Vector(-0.461538462, 0.8871202, 0), App.Vector(0.8871202, 0.461538462, 0), "ZXY"))
sketch9.addGeometry(Part.Circle(App.Vector(0, -49.2, 0), App.Vector(0, 0, 1), 2.6), False)
sketch9.addConstraint(Sketcher.Constraint("PointOnObject", 0, 3, -2))
sketch9.addConstraint(Sketcher.Constraint("Diameter", 0, Q("0.201 in")))
sketch9.addConstraint(Sketcher.Constraint("DistanceY", 0, 3, -1, 1, Q("1.9375 in")))
doc.recompute()
hole8 = body.newObject("PartDesign::Hole", "Hole007")
hole8.Profile = sketch9
hole8.ThreadType = "None"
hole8.Diameter = Q("0.201 in")
hole8.DepthType = "Dimension"
hole8.Depth = Q("0.375 in")
hole8.DrillPoint = "Flat"
doc.recompute()

fillet = body.newObject("PartDesign::Fillet", "Fillet")
fillet.Base = (hole8, edges_at(hole8, [
    (-13.494, 113.523, 0),
    (13.494, 113.523, 0),
    (46.483, 96.754, 0),
    (70.425, 84.298, 0),
    (70.425, -8.098, 0),
    (46.483, -20.554, 0),
    (13.494, -37.323, 0),
    (-13.494, -37.323, 0),
]))
fillet.Radius = Q("0.125 in")

doc.recompute()
